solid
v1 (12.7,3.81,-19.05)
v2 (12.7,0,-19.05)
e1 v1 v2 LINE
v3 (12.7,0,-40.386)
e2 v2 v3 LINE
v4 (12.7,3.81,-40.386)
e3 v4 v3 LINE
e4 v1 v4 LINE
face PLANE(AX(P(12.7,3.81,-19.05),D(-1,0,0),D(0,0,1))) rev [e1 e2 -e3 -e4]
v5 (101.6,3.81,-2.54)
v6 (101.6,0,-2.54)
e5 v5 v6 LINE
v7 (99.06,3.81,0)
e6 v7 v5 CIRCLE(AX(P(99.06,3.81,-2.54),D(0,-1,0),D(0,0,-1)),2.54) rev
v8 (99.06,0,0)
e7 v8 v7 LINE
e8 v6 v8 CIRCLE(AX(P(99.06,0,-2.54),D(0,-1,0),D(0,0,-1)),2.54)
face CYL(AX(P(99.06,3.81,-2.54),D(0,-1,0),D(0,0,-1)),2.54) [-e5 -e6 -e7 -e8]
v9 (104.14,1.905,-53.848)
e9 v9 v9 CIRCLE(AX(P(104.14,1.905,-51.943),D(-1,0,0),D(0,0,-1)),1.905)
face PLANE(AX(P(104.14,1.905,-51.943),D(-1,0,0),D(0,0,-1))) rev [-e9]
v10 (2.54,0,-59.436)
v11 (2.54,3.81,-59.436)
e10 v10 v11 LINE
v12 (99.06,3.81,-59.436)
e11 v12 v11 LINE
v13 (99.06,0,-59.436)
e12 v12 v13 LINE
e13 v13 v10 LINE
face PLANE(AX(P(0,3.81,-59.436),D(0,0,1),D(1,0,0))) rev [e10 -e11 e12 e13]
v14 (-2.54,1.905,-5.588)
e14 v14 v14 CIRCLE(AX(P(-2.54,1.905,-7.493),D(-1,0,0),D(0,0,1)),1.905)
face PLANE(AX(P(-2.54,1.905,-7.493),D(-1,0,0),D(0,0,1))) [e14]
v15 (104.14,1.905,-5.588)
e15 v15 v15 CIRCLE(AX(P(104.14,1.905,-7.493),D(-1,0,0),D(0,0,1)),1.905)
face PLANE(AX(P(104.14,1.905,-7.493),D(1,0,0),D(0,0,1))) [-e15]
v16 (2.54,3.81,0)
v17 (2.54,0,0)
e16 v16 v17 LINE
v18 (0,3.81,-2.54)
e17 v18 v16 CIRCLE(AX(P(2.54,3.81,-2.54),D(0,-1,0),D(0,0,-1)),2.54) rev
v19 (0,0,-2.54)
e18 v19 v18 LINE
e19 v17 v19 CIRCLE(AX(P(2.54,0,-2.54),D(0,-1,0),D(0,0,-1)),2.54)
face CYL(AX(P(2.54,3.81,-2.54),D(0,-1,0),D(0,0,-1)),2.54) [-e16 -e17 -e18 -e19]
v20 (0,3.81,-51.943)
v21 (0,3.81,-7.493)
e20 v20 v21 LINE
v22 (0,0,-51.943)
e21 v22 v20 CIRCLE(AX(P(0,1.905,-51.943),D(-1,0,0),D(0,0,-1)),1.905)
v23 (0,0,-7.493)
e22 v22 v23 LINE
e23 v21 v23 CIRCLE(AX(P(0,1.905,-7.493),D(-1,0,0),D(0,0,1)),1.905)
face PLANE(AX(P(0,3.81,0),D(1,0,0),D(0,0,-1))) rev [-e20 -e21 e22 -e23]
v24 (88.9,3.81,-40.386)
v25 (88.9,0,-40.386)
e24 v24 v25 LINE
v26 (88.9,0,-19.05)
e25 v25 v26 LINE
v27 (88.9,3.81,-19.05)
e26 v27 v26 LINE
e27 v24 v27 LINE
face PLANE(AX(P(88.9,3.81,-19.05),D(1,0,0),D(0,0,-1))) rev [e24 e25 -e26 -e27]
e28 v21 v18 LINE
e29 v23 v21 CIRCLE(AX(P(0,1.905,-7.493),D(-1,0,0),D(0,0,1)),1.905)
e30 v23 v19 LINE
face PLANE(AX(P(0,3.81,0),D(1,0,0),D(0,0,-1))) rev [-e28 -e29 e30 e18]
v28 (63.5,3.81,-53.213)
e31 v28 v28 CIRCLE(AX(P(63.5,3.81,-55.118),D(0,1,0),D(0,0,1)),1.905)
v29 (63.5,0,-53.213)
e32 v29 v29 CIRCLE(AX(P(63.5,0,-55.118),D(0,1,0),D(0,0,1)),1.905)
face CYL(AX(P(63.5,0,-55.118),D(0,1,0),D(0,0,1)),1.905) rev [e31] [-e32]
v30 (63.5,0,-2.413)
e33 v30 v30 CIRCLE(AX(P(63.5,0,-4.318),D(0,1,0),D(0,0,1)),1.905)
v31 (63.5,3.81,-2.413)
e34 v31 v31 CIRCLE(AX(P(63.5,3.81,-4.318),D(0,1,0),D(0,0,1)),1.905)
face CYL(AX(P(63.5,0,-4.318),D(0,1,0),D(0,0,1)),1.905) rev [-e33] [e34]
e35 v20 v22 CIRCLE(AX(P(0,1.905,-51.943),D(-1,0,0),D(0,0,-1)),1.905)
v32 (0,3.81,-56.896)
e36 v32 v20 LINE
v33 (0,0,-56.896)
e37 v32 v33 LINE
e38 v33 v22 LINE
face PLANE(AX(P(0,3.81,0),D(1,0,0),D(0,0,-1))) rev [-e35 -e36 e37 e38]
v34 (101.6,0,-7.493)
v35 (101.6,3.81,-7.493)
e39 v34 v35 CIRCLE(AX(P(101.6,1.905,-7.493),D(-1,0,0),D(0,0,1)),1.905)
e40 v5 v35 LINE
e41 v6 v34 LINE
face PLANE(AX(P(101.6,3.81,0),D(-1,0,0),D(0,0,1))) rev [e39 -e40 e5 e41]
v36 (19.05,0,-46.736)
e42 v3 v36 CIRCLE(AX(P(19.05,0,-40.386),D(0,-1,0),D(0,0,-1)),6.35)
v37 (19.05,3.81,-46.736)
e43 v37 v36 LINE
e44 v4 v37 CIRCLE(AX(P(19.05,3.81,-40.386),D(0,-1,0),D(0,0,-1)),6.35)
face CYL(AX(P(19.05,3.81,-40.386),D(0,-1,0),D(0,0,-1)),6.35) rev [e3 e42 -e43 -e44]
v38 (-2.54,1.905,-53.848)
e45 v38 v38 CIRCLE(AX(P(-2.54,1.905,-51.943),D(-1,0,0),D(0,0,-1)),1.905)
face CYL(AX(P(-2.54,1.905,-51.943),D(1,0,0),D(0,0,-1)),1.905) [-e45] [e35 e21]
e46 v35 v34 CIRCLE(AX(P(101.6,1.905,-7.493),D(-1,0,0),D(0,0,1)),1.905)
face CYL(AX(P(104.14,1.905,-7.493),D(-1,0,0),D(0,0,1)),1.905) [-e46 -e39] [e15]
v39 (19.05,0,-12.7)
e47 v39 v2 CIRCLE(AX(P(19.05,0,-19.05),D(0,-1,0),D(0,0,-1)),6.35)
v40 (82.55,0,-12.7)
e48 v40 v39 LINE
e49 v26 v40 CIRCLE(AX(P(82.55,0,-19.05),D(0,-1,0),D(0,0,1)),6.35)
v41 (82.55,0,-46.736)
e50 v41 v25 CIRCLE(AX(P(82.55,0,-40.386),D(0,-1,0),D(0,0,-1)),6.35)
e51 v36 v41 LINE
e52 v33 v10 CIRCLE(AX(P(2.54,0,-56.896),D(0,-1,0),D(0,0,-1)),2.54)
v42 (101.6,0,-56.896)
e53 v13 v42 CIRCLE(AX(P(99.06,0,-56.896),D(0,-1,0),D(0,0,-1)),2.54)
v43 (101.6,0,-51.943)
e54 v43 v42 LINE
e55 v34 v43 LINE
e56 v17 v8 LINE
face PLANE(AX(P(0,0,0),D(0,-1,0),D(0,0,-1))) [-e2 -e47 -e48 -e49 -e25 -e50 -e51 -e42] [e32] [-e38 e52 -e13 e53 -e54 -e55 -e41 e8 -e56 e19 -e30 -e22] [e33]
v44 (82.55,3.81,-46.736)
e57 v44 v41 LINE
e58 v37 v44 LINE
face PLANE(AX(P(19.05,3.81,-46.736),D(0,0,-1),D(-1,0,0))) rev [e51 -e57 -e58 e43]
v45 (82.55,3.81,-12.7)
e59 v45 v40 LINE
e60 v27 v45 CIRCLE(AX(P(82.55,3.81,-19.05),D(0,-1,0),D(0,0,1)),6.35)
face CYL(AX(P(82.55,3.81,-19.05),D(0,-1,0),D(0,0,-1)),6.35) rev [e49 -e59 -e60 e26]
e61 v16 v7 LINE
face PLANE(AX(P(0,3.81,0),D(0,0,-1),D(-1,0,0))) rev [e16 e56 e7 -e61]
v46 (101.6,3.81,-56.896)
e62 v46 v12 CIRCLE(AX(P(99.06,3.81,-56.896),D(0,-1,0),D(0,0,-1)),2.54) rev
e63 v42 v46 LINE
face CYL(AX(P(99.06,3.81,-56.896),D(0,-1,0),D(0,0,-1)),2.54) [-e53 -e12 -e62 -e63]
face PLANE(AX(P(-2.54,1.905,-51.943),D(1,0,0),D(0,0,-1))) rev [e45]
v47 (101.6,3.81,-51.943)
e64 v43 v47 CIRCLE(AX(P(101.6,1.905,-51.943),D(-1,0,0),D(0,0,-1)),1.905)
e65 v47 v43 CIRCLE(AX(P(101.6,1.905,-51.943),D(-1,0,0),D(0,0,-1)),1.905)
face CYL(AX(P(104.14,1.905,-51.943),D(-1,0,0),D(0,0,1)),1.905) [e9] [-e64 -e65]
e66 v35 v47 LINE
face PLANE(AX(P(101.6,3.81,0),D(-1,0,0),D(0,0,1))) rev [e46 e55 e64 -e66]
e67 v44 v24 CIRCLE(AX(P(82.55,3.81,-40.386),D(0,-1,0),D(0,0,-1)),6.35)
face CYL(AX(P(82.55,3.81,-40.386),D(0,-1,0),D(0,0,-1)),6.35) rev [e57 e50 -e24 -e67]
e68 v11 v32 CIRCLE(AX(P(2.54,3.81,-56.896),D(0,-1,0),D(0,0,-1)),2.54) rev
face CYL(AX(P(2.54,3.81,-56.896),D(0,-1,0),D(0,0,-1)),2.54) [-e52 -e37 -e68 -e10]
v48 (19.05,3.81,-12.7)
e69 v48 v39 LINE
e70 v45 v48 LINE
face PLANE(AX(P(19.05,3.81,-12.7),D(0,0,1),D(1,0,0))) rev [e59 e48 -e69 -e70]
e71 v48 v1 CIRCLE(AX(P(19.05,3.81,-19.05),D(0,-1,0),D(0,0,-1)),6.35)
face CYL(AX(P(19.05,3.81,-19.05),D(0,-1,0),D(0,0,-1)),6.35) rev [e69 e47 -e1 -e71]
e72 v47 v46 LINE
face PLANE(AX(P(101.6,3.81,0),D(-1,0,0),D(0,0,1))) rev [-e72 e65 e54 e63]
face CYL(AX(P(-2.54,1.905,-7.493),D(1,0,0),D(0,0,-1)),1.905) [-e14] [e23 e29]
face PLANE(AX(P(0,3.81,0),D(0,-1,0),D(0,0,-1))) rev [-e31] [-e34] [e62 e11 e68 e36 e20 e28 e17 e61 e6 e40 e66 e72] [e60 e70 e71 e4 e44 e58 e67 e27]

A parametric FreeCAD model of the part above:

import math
import FreeCAD as App
import Part
import Sketcher
Q = App.Units.Quantity


def edges_at(feature, points):
    """Names of the edges that pass closest to the given points."""
    edges = feature.Shape.Edges
    near = lambda p: min(range(len(edges)), key=lambda i: edges[i].distToShape(Part.Vertex(*p))[0])
    return sorted({f"Edge{near(p) + 1}" for p in points})


def add_polygon(sketch, points):
    """Adds a closed chain of lines whose ends are joined by coincident constraints."""
    first, n = sketch.GeometryCount, len(points)
    for a, b in zip(points, points[1:] + points[:1]):
        sketch.addGeometry(Part.LineSegment(App.Vector(*a, 0), App.Vector(*b, 0)), False)
    for i in range(n):
        sketch.addConstraint(Sketcher.Constraint("Coincident", first + i, 2, first + (i + 1) % n, 1))

doc = App.newDocument("Part")
body = doc.addObject("PartDesign::Body", "Body")

sketch1 = doc.addObject("Sketcher::SketchObject", "Sketch")
body.addObject(sketch1)
sketch1.AttachmentSupport = (doc.XZ_Plane, [""])
sketch1.MapMode = "FlatFace"
add_polygon(sketch1, [(0, -59), (0, 0), (102, 0), (102, -59)])
sketch1.addConstraint(Sketcher.Constraint("Vertical", 0))
sketch1.addConstraint(Sketcher.Constraint("Horizontal", 1))
sketch1.addConstraint(Sketcher.Constraint("Vertical", 2))
sketch1.addConstraint(Sketcher.Constraint("Horizontal", 3))
sketch1.addConstraint(Sketcher.Constraint("Coincident", 0, 2, -1, 1))
sketch1.addConstraint(Sketcher.Constraint("DistanceX", 1, 1, 1, 2, Q("4 in")))
sketch1.addConstraint(Sketcher.Constraint("DistanceY", 0, 1, 0, 2, Q("2.34 in")))
pad1 = doc.addObject("PartDesign::Pad", "Pad")
body.addObject(pad1)
pad1.Profile = sketch1
pad1.Length = Q("0.15 in")
pad1.Reversed = True
doc.recompute()

fillet = doc.addObject("PartDesign::Fillet", "Fillet")
body.addObject(fillet)
fillet.Base = (pad1, edges_at(pad1, [
    (0, 1.905, -59.436),
    (101.6, 1.905, -59.436),
    (101.6, 1.905, 0),
    (0, 1.905, 0),
]))
fillet.Radius = Q("0.1 in")

sketch2 = doc.addObject("Sketcher::SketchObject", "Sketch001")
body.addObject(sketch2)
sketch2.AttachmentSupport = (doc.YZ_Plane, [""])
sketch2.MapMode = "FlatFace"
sketch2.addGeometry(Part.Circle(App.Vector(1.9, -7.5, 0), App.Vector(0, 0, 1), 1.9), False)
sketch2.addGeometry(Part.Circle(App.Vector(1.9, -51.9, 0), App.Vector(0, 0, 1), 1.9), False)
sketch2.addConstraint(Sketcher.Constraint("Equal", 0, 1))
sketch2.addConstraint(Sketcher.Constraint("Vertical", 0, 3, 1, 3))
sketch2.addConstraint(Sketcher.Constraint("Diameter", 0, Q("0.15 in")))
sketch2.addConstraint(Sketcher.Constraint("DistanceY", 1, 3, 0, 3, Q("1.75 in")))
sketch2.addConstraint(Sketcher.Constraint("DistanceX", -1, 1, 0, 3, Q("0.075 in")))
sketch2.addConstraint(Sketcher.Constraint("DistanceY", 0, 3, -1, 1, Q("0.295 in")))
pad2 = doc.addObject("PartDesign::Pad", "Pad001")
body.addObject(pad2)
pad2.Profile = sketch2
pad2.Length = Q("0.1 in")
pad2.Reversed = True
doc.recompute()

datumplane = doc.addObject("PartDesign::Plane", "DatumPlane")
body.addObject(datumplane)
datumplane.AttachmentSupport = (doc.YZ_Plane, [""])
datumplane.MapMode = "FlatFace"
datumplane.AttachmentOffset = App.Placement(App.Vector(0, 0, 2 * 25.4), App.Rotation())
mirrored = doc.addObject("PartDesign::Mirrored", "Mirrored")
body.addObject(mirrored)
mirrored.Originals = [pad2]
mirrored.MirrorPlane = (datumplane, [""])
body.Tip = mirrored

sketch3 = doc.addObject("Sketcher::SketchObject", "Sketch002")
body.addObject(sketch3)
sketch3.AttachmentSupport = (doc.XZ_Plane, [""])
sketch3.MapMode = "FlatFace"
sketch3.addGeometry(Part.LineSegment(App.Vector(83, -13, 0), App.Vector(19, -13, 0)), False)
sketch3.addGeometry(Part.ArcOfCircle(Part.Circle(App.Vector(19, -19, 0), App.Vector(0, 0, 1), 6), math.radians(90), math.radians(180)), False)
sketch3.addGeometry(Part.LineSegment(App.Vector(13, -19, 0), App.Vector(13, -40, 0)), False)
sketch3.addGeometry(Part.ArcOfCircle(Part.Circle(App.Vector(19, -40, 0), App.Vector(0, 0, 1), 6), math.radians(180), math.radians(270)), False)
sketch3.addGeometry(Part.LineSegment(App.Vector(19, -47, 0), App.Vector(83, -47, 0)), False)
sketch3.addGeometry(Part.ArcOfCircle(Part.Circle(App.Vector(83, -40, 0), App.Vector(0, 0, 1), 6), math.radians(-90), math.radians(0)), False)
sketch3.addGeometry(Part.LineSegment(App.Vector(89, -40, 0), App.Vector(89, -19, 0)), False)
sketch3.addGeometry(Part.ArcOfCircle(Part.Circle(App.Vector(83, -19, 0), App.Vector(0, 0, 1), 6), math.radians(0), math.radians(90)), False)
sketch3.addConstraint(Sketcher.Constraint("Tangent", 0, 2, 1, 1))
sketch3.addConstraint(Sketcher.Constraint("Tangent", 1, 2, 2, 1))
sketch3.addConstraint(Sketcher.Constraint("Tangent", 2, 2, 3, 1))
sketch3.addConstraint(Sketcher.Constraint("Tangent", 3, 2, 4, 1))
sketch3.addConstraint(Sketcher.Constraint("Tangent", 4, 2, 5, 1))
sketch3.addConstraint(Sketcher.Constraint("Tangent", 5, 2, 6, 1))
sketch3.addConstraint(Sketcher.Constraint("Tangent", 6, 2, 7, 1))
sketch3.addConstraint(Sketcher.Constraint("Tangent", 7, 2, 0, 1))
sketch3.addConstraint(Sketcher.Constraint("Horizontal", 0))
sketch3.addConstraint(Sketcher.Constraint("Vertical", 2))
sketch3.addConstraint(Sketcher.Constraint("Horizontal", 4))
sketch3.addConstraint(Sketcher.Constraint("Vertical", 6))
sketch3.addConstraint(Sketcher.Constraint("Equal", 1, 3))
sketch3.addConstraint(Sketcher.Constraint("Equal", 3, 5))
sketch3.addConstraint(Sketcher.Constraint("Equal", 5, 7))
sketch3.addConstraint(Sketcher.Constraint("Radius", 1, Q("0.25 in")))
sketch3.addConstraint(Sketcher.Constraint("DistanceX", 0, 2, 0, 1, Q("2.5 in")))
sketch3.addConstraint(Sketcher.Constraint("DistanceY", 2, 2, 2, 1, Q("0.84 in")))
sketch3.addConstraint(Sketcher.Constraint("DistanceY", 0, 2, -1, 1, Q("0.5 in")))
sketch3.addConstraint(Sketcher.Constraint("DistanceX", -1, 1, 1, 2, Q("0.5 in")))
pocket1 = doc.addObject("PartDesign::Pocket", "Pocket")
body.addObject(pocket1)
pocket1.Profile = sketch3
pocket1.Type = "ThroughAll"

sketch4 = doc.addObject("Sketcher::SketchObject", "Sketch003")
body.addObject(sketch4)
sketch4.AttachmentSupport = (doc.XZ_Plane, [""])
sketch4.MapMode = "FlatFace"
sketch4.AttachmentOffset = App.Placement(App.Vector(0, 0, -0.15 * 25.4), App.Rotation())
sketch4.addGeometry(Part.Circle(App.Vector(63.5, -4.3, 0), App.Vector(0, 0, 1), 1.9), False)
sketch4.addGeometry(Part.Circle(App.Vector(63.5, -55.1, 0), App.Vector(0, 0, 1), 1.9), False)
sketch4.addConstraint(Sketcher.Constraint("Equal", 0, 1))
sketch4.addConstraint(Sketcher.Constraint("Vertical", 0, 3, 1, 3))
sketch4.addConstraint(Sketcher.Constraint("Diameter", 0, Q("0.15 in")))
sketch4.addConstraint(Sketcher.Constraint("DistanceY", 1, 3, 0, 3, Q("2 in")))
sketch4.addConstraint(Sketcher.Constraint("DistanceX", -1, 1, 0, 3, Q("2.5 in")))
sketch4.addConstraint(Sketcher.Constraint("DistanceY", 0, 3, -1, 1, Q("0.17 in")))
pocket2 = doc.addObject("PartDesign::Pocket", "Pocket001")
body.addObject(pocket2)
pocket2.Profile = sketch4
pocket2.Type = "ThroughAll"
pocket2.Reversed = True

doc.recompute()
